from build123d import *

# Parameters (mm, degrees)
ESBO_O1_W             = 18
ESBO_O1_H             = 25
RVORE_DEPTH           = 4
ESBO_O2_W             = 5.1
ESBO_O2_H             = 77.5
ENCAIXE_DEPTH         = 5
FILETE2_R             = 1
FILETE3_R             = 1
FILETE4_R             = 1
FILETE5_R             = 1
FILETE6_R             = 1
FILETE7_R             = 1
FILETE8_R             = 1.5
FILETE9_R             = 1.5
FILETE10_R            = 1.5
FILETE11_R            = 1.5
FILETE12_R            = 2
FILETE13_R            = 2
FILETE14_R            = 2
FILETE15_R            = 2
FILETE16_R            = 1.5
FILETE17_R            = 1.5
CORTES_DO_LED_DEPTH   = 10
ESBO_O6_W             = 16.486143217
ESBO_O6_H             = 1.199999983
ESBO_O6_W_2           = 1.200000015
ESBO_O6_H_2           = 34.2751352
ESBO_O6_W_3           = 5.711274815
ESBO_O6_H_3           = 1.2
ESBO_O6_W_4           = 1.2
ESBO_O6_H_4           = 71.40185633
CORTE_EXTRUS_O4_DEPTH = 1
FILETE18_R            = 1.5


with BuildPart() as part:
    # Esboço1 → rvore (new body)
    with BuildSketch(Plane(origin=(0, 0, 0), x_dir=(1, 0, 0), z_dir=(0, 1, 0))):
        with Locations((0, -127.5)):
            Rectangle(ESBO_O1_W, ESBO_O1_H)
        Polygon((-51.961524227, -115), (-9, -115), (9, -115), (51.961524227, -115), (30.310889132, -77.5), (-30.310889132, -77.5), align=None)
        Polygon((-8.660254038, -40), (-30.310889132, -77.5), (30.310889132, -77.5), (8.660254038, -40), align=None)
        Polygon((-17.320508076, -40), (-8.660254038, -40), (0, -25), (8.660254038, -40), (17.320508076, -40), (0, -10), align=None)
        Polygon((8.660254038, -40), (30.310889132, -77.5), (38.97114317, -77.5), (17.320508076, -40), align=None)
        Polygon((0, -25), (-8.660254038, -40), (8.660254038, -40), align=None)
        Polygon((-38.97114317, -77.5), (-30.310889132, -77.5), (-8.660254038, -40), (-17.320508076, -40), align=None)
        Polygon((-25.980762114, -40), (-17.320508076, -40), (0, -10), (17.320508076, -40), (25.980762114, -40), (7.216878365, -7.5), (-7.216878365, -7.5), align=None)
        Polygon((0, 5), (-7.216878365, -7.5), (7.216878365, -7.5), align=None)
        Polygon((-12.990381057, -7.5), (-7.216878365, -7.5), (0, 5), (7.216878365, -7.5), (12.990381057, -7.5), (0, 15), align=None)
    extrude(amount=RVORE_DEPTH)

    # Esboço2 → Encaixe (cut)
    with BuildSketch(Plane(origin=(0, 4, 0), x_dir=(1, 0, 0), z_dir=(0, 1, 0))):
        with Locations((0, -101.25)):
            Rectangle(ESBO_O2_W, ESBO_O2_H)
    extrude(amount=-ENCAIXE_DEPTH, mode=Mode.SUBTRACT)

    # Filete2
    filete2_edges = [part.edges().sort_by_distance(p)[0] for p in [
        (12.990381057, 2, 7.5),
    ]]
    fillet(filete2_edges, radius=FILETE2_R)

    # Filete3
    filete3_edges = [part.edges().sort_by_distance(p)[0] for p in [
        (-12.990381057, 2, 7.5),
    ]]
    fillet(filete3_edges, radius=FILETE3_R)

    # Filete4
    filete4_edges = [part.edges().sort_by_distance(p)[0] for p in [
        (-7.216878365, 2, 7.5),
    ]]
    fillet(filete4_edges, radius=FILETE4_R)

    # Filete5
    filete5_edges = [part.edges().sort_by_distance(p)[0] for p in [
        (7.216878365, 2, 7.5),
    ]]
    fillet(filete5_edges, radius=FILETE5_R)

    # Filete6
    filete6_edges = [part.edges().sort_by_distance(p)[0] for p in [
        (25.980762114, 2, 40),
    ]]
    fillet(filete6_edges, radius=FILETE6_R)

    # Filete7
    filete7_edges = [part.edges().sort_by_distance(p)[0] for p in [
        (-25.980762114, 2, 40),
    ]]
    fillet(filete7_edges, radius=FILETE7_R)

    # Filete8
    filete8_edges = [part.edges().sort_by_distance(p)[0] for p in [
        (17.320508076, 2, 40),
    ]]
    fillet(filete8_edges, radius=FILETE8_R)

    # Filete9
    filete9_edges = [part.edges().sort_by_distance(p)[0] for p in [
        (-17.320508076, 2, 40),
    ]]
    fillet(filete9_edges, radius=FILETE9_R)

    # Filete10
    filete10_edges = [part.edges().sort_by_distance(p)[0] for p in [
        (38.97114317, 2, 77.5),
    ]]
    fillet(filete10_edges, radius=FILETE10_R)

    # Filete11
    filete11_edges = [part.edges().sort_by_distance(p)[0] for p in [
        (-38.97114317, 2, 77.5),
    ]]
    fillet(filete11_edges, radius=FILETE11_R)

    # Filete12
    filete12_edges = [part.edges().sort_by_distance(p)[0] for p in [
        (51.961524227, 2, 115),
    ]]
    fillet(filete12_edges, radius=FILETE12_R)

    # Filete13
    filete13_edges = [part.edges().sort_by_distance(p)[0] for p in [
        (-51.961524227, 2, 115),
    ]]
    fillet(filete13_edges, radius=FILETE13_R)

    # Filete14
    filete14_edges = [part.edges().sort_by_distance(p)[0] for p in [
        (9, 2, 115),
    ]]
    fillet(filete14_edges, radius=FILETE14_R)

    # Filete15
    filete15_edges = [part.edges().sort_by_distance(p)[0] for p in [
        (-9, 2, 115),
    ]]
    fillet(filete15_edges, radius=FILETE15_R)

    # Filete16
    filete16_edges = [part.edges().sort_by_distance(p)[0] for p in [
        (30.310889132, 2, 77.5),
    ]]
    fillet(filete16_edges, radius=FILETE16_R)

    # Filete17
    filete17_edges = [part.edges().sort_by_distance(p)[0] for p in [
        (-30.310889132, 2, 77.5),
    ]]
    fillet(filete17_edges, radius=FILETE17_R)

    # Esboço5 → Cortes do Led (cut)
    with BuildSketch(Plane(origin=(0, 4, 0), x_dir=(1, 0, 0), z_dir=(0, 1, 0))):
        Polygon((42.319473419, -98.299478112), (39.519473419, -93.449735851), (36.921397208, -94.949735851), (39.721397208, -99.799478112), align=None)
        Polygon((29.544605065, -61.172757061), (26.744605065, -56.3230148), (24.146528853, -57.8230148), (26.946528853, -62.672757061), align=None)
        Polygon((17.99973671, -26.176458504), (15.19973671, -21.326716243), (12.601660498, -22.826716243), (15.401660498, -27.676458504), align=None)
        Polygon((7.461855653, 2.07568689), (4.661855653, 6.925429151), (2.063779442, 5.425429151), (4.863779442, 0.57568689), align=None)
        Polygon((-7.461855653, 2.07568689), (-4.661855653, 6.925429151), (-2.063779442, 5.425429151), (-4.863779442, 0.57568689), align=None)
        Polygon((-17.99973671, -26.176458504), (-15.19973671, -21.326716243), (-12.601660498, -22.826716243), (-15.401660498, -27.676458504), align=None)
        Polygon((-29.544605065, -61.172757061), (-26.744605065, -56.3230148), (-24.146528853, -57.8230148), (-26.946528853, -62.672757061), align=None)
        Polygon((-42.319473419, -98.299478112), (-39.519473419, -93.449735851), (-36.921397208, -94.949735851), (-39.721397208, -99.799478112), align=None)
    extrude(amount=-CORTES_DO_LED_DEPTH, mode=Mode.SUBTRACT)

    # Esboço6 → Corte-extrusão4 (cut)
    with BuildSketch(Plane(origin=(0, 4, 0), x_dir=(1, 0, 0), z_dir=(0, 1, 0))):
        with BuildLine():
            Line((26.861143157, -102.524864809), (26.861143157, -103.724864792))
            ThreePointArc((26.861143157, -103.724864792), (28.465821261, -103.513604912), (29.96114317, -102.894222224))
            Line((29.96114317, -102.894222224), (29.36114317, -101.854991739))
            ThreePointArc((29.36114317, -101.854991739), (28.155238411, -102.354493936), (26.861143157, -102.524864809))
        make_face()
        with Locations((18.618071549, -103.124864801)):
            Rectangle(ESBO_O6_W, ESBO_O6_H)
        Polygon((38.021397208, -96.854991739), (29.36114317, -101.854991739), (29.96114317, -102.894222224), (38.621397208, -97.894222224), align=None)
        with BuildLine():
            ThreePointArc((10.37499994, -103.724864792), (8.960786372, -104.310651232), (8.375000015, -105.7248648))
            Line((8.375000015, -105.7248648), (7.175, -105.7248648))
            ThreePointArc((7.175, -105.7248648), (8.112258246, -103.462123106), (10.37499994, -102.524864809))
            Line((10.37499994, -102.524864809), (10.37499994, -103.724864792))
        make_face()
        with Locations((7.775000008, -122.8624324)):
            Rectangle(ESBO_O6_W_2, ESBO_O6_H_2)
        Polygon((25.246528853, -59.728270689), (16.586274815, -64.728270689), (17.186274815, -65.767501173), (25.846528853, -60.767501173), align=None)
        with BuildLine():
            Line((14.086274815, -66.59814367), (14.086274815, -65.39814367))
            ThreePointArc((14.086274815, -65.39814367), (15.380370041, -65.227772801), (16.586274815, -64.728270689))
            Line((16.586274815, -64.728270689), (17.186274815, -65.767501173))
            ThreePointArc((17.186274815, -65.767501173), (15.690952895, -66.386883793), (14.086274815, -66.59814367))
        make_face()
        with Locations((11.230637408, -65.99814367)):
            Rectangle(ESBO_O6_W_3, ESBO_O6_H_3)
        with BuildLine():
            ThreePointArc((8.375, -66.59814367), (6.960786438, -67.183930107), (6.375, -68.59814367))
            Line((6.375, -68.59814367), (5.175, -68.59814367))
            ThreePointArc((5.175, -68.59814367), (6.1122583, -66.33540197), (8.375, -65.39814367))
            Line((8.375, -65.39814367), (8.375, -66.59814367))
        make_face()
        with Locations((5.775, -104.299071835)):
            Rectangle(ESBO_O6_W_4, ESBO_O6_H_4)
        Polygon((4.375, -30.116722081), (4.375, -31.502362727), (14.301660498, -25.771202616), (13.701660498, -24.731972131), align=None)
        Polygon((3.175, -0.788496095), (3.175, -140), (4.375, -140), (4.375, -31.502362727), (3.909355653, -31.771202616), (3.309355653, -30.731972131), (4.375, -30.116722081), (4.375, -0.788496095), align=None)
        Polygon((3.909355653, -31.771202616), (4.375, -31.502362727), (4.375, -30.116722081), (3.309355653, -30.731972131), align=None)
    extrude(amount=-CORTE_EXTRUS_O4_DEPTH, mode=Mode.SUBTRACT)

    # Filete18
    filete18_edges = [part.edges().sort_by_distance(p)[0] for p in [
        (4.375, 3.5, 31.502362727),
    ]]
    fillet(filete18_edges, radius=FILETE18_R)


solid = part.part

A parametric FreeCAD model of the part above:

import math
import FreeCAD as App
import Part
import Sketcher
from FreeCAD import Vector
Q = App.Units.Quantity


def edges_at(feature, points):
    """Names of the edges that pass closest to the given points."""
    edges = feature.Shape.Edges
    near = lambda p: min(range(len(edges)), key=lambda i: edges[i].distToShape(Part.Vertex(*p))[0])
    return sorted({f"Edge{near(p) + 1}" for p in points})


def add_polygon(sketch, points):
    """Adds a closed chain of lines whose ends are joined by coincident constraints."""
    first, n = sketch.GeometryCount, len(points)
    for a, b in zip(points, points[1:] + points[:1]):
        sketch.addGeometry(Part.LineSegment(App.Vector(*a, 0), App.Vector(*b, 0)), False)
    for i in range(n):
        sketch.addConstraint(Sketcher.Constraint("Coincident", first + i, 2, first + (i + 1) % n, 1))

doc = App.newDocument("Part")
body = doc.addObject("PartDesign::Body", "Body")

sketch1 = doc.addObject("Sketcher::SketchObject", "Sketch")
body.addObject(sketch1)
sketch1.AttachmentSupport = (doc.XZ_Plane, [""])
sketch1.MapMode = "FlatFace"
add_polygon(sketch1, [(-30.310889, 77.5), (-51.961524, 115), (-9, 115), (-9, 140), (9, 140), (9, 115), (51.961524, 115), (30.310889, 77.5), (38.971143, 77.5), (17.320508, 40), (25.980762, 40), (7.216878, 7.5), (12.990381, 7.5), (0, -15), (-12.990381, 7.5), (-7.216878, 7.5), (-25.980762, 40), (-17.320508, 40), (-38.971143, 77.5)])
sketch1.addConstraint(Sketcher.Constraint("Horizontal", 1))
sketch1.addConstraint(Sketcher.Constraint("Vertical", 2))
sketch1.addConstraint(Sketcher.Constraint("Horizontal", 3))
sketch1.addConstraint(Sketcher.Constraint("Vertical", 4))
sketch1.addConstraint(Sketcher.Constraint("Horizontal", 5))
sketch1.addConstraint(Sketcher.Constraint("Horizontal", 7))
sketch1.addConstraint(Sketcher.Constraint("Horizontal", 9))
sketch1.addConstraint(Sketcher.Constraint("Horizontal", 11))
sketch1.addConstraint(Sketcher.Constraint("Horizontal", 14))
sketch1.addConstraint(Sketcher.Constraint("Horizontal", 16))
sketch1.addConstraint(Sketcher.Constraint("Horizontal", 18))
sketch1.addConstraint(Sketcher.Constraint("Symmetric", 1, 2, 4, 2, -2))
sketch1.addConstraint(Sketcher.Constraint("Symmetric", 11, 2, 13, 2, -2))
sketch1.addConstraint(Sketcher.Constraint("Symmetric", 9, 2, 15, 2, -2))
sketch1.addConstraint(Sketcher.Constraint("Symmetric", 7, 2, 17, 2, -2))
sketch1.addConstraint(Sketcher.Constraint("PointOnObject", 12, 2, -2))
sketch1.addConstraint(Sketcher.Constraint("Parallel", 6, 8))
sketch1.addConstraint(Sketcher.Constraint("Parallel", 8, 10))
sketch1.addConstraint(Sketcher.Constraint("Parallel", 10, 12))
sketch1.addConstraint(Sketcher.Constraint("Parallel", 0, 13))
sketch1.addConstraint(Sketcher.Constraint("Parallel", 13, 15))
sketch1.addConstraint(Sketcher.Constraint("Parallel", 15, 17))
sketch1.addConstraint(Sketcher.Constraint("Equal", 1, 5))
sketch1.addConstraint(Sketcher.Constraint("Equal", 7, 9))
sketch1.addConstraint(Sketcher.Constraint("Equal", 6, 8))
sketch1.addConstraint(Sketcher.Constraint("DistanceX", 3, 1, 3, 2, 18.0))
sketch1.addConstraint(Sketcher.Constraint("DistanceY", 2, 1, 2, 2, 25.0))
sketch1.addConstraint(Sketcher.Constraint("Angle", 0, Q("120 deg")))
sketch1.addConstraint(Sketcher.Constraint("DistanceY", -1, 1, 0, 2, 115.0))
sketch1.addConstraint(Sketcher.Constraint("DistanceY", -1, 1, 8, 2, 40.0))
sketch1.addConstraint(Sketcher.Constraint("DistanceY", 12, 2, -1, 1, 15.0))
sketch1.addConstraint(Sketcher.Constraint("DistanceY", 10, 2, 6, 2, 70.0))
sketch1.addConstraint(Sketcher.Constraint("DistanceX", 1, 1, 1, 2, 42.961524))
sketch1.addConstraint(Sketcher.Constraint("DistanceX", 7, 1, 7, 2, 8.660254))
pad1 = doc.addObject("PartDesign::Pad", "Pad")
body.addObject(pad1)
pad1.Profile = sketch1
pad1.Length = 4
pad1.Reversed = True

sketch2 = doc.addObject("Sketcher::SketchObject", "Sketch001")
body.addObject(sketch2)
sketch2.AttachmentSupport = (doc.XZ_Plane, [""])
sketch2.MapMode = "FlatFace"
sketch2.AttachmentOffset = App.Placement(Vector(0, 0, -4), App.Rotation())
add_polygon(sketch2, [(-2.55, 62.5), (-2.55, 140), (2.55, 140), (2.55, 62.5)])
sketch2.addConstraint(Sketcher.Constraint("Vertical", 0))
sketch2.addConstraint(Sketcher.Constraint("Horizontal", 1))
sketch2.addConstraint(Sketcher.Constraint("Vertical", 2))
sketch2.addConstraint(Sketcher.Constraint("Horizontal", 3))
sketch2.addConstraint(Sketcher.Constraint("DistanceX", 1, 1, 1, 2, 5.1))
sketch2.addConstraint(Sketcher.Constraint("DistanceY", 0, 1, 0, 2, 77.5))
sketch2.addConstraint(Sketcher.Constraint("DistanceY", -1, 1, 0, 2, 140.0))
sketch2.addConstraint(Sketcher.Constraint("DistanceX", 0, 2, -1, 1, 2.55))
pocket1 = doc.addObject("PartDesign::Pocket", "Pocket")
body.addObject(pocket1)
pocket1.Profile = sketch2
pocket1.Length = 5
pocket1.Reversed = True
doc.recompute()

fillet = doc.addObject("PartDesign::Fillet", "Fillet")
body.addObject(fillet)
fillet.Base = (pocket1, edges_at(pocket1, [(12.99, 2, 7.5)]))
fillet.Radius = 1
doc.recompute()

fillet2 = doc.addObject("PartDesign::Fillet", "Fillet001")
body.addObject(fillet2)
fillet2.Base = (fillet, edges_at(fillet, [(-12.99, 2, 7.5)]))
fillet2.Radius = 1
doc.recompute()

fillet3 = doc.addObject("PartDesign::Fillet", "Fillet002")
body.addObject(fillet3)
fillet3.Base = (fillet2, edges_at(fillet2, [(-7.217, 2, 7.5)]))
fillet3.Radius = 1
doc.recompute()

fillet4 = doc.addObject("PartDesign::Fillet", "Fillet003")
body.addObject(fillet4)
fillet4.Base = (fillet3, edges_at(fillet3, [(7.217, 2, 7.5)]))
fillet4.Radius = 1
doc.recompute()

fillet5 = doc.addObject("PartDesign::Fillet", "Fillet004")
body.addObject(fillet5)
fillet5.Base = (fillet4, edges_at(fillet4, [(25.981, 2, 40)]))
fillet5.Radius = 1
doc.recompute()

fillet6 = doc.addObject("PartDesign::Fillet", "Fillet005")
body.addObject(fillet6)
fillet6.Base = (fillet5, edges_at(fillet5, [(-25.981, 2, 40)]))
fillet6.Radius = 1
doc.recompute()

fillet7 = doc.addObject("PartDesign::Fillet", "Fillet006")
body.addObject(fillet7)
fillet7.Base = (fillet6, edges_at(fillet6, [(17.321, 2, 40)]))
fillet7.Radius = 1.5
doc.recompute()

fillet8 = doc.addObject("PartDesign::Fillet", "Fillet007")
body.addObject(fillet8)
fillet8.Base = (fillet7, edges_at(fillet7, [(-17.321, 2, 40)]))
fillet8.Radius = 1.5
doc.recompute()

fillet9 = doc.addObject("PartDesign::Fillet", "Fillet008")
body.addObject(fillet9)
fillet9.Base = (fillet8, edges_at(fillet8, [(38.971, 2, 77.5)]))
fillet9.Radius = 1.5
doc.recompute()

fillet10 = doc.addObject("PartDesign::Fillet", "Fillet009")
body.addObject(fillet10)
fillet10.Base = (fillet9, edges_at(fillet9, [(-38.971, 2, 77.5)]))
fillet10.Radius = 1.5
doc.recompute()

fillet11 = doc.addObject("PartDesign::Fillet", "Fillet010")
body.addObject(fillet11)
fillet11.Base = (fillet10, edges_at(fillet10, [(51.962, 2, 115)]))
fillet11.Radius = 2
doc.recompute()

fillet12 = doc.addObject("PartDesign::Fillet", "Fillet011")
body.addObject(fillet12)
fillet12.Base = (fillet11, edges_at(fillet11, [(-51.962, 2, 115)]))
fillet12.Radius = 2
doc.recompute()

fillet13 = doc.addObject("PartDesign::Fillet", "Fillet012")
body.addObject(fillet13)
fillet13.Base = (fillet12, edges_at(fillet12, [(9, 2, 115)]))
fillet13.Radius = 2
doc.recompute()

fillet14 = doc.addObject("PartDesign::Fillet", "Fillet013")
body.addObject(fillet14)
fillet14.Base = (fillet13, edges_at(fillet13, [(-9, 2, 115)]))
fillet14.Radius = 2
doc.recompute()

fillet15 = doc.addObject("PartDesign::Fillet", "Fillet014")
body.addObject(fillet15)
fillet15.Base = (fillet14, edges_at(fillet14, [(30.311, 2, 77.5)]))
fillet15.Radius = 1.5
doc.recompute()

fillet16 = doc.addObject("PartDesign::Fillet", "Fillet015")
body.addObject(fillet16)
fillet16.Base = (fillet15, edges_at(fillet15, [(-30.311, 2, 77.5)]))
fillet16.Radius = 1.5

sketch3 = doc.addObject("Sketcher::SketchObject", "Sketch002")
body.addObject(sketch3)
sketch3.AttachmentSupport = (doc.XZ_Plane, [""])
sketch3.MapMode = "FlatFace"
sketch3.AttachmentOffset = App.Placement(Vector(0, 0, -4), App.Rotation())
add_polygon(sketch3, [(42.319473, 98.299478), (39.519473, 93.449736), (36.921397, 94.949736), (39.721397, 99.799478)])
add_polygon(sketch3, [(29.544605, 61.172757), (26.744605, 56.323015), (24.146529, 57.823015), (26.946529, 62.672757)])
add_polygon(sketch3, [(17.999737, 26.176459), (15.199737, 21.326716), (12.60166, 22.826716), (15.40166, 27.676459)])
add_polygon(sketch3, [(7.461856, -2.075687), (4.661856, -6.925429), (2.063779, -5.425429), (4.863779, -0.575687)])
add_polygon(sketch3, [(-4.661856, -6.925429), (-7.461856, -2.075687), (-4.863779, -0.575687), (-2.063779, -5.425429)])
add_polygon(sketch3, [(-15.199737, 21.326716), (-17.999737, 26.176459), (-15.40166, 27.676459), (-12.60166, 22.826716)])
add_polygon(sketch3, [(-26.744605, 56.323015), (-29.544605, 61.172757), (-26.946529, 62.672757), (-24.146529, 57.823015)])
add_polygon(sketch3, [(-39.519473, 93.449736), (-42.319473, 98.299478), (-39.721397, 99.799478), (-36.921397, 94.949736)])
sketch3.addConstraint(Sketcher.Constraint("Symmetric", 15, 2, 16, 2, -2))
sketch3.addConstraint(Sketcher.Constraint("Symmetric", 14, 2, 17, 2, -2))
sketch3.addConstraint(Sketcher.Constraint("Symmetric", 13, 2, 18, 2, -2))
sketch3.addConstraint(Sketcher.Constraint("Symmetric", 12, 2, 19, 2, -2))
sketch3.addConstraint(Sketcher.Constraint("Symmetric", 11, 2, 20, 2, -2))
sketch3.addConstraint(Sketcher.Constraint("Symmetric", 10, 2, 21, 2, -2))
sketch3.addConstraint(Sketcher.Constraint("Symmetric", 9, 2, 22, 2, -2))
sketch3.addConstraint(Sketcher.Constraint("Symmetric", 8, 2, 23, 2, -2))
sketch3.addConstraint(Sketcher.Constraint("Symmetric", 7, 2, 24, 2, -2))
sketch3.addConstraint(Sketcher.Constraint("Symmetric", 6, 2, 25, 2, -2))
sketch3.addConstraint(Sketcher.Constraint("Symmetric", 5, 2, 26, 2, -2))
sketch3.addConstraint(Sketcher.Constraint("Symmetric", 4, 2, 27, 2, -2))
sketch3.addConstraint(Sketcher.Constraint("Symmetric", 3, 2, 28, 2, -2))
sketch3.addConstraint(Sketcher.Constraint("Symmetric", 2, 2, 29, 2, -2))
sketch3.addConstraint(Sketcher.Constraint("Symmetric", 1, 2, 30, 2, -2))
sketch3.addConstraint(Sketcher.Constraint("Symmetric", 0, 2, 31, 2, -2))
sketch3.addConstraint(Sketcher.Constraint("Perpendicular", 0, 1))
sketch3.addConstraint(Sketcher.Constraint("Perpendicular", 1, 2))
sketch3.addConstraint(Sketcher.Constraint("Perpendicular", 2, 3))
sketch3.addConstraint(Sketcher.Constraint("Perpendicular", 3, 4))
sketch3.addConstraint(Sketcher.Constraint("Perpendicular", 4, 5))
sketch3.addConstraint(Sketcher.Constraint("Perpendicular", 5, 6))
sketch3.addConstraint(Sketcher.Constraint("Perpendicular", 6, 7))
sketch3.addConstraint(Sketcher.Constraint("Perpendicular", 7, 8))
sketch3.addConstraint(Sketcher.Constraint("Perpendicular", 8, 9))
sketch3.addConstraint(Sketcher.Constraint("Perpendicular", 9, 10))
sketch3.addConstraint(Sketcher.Constraint("Perpendicular", 10, 11))
sketch3.addConstraint(Sketcher.Constraint("Perpendicular", 11, 12))
sketch3.addConstraint(Sketcher.Constraint("Perpendicular", 12, 13))
sketch3.addConstraint(Sketcher.Constraint("Perpendicular", 13, 14))
sketch3.addConstraint(Sketcher.Constraint("Perpendicular", 14, 15))
sketch3.addConstraint(Sketcher.Constraint("Equal", 2, 4))
sketch3.addConstraint(Sketcher.Constraint("Equal", 3, 5))
sketch3.addConstraint(Sketcher.Constraint("Equal", 6, 8))
sketch3.addConstraint(Sketcher.Constraint("Equal", 7, 9))
sketch3.addConstraint(Sketcher.Constraint("Equal", 10, 12))
sketch3.addConstraint(Sketcher.Constraint("Equal", 11, 13))
sketch3.addConstraint(Sketcher.Constraint("Angle", 0, Q("-120 deg")))
sketch3.addConstraint(Sketcher.Constraint("Distance", 1, 3.0))
sketch3.addConstraint(Sketcher.Constraint("Distance", 0, 5.6))
sketch3.addConstraint(Sketcher.Constraint("DistanceY", 8, 2, 4, 2, 34.996299))
sketch3.addConstraint(Sketcher.Constraint("DistanceY", -1, 1, 2, 2, 99.799478))
sketch3.addConstraint(Sketcher.Constraint("DistanceX", -1, 1, 5, 2, 24.146529))
sketch3.addConstraint(Sketcher.Constraint("DistanceX", -1, 1, 9, 2, 12.60166))
sketch3.addConstraint(Sketcher.Constraint("DistanceY", -1, 1, 10, 2, 27.676459))
sketch3.addConstraint(Sketcher.Constraint("DistanceY", 12, 2, -1, 1, 6.925429))
sketch3.addConstraint(Sketcher.Constraint("DistanceX", -1, 1, 13, 2, 2.063779))
sketch3.addConstraint(Sketcher.Constraint("DistanceX", 4, 2, 0, 2, 12.774868))
pocket2 = doc.addObject("PartDesign::Pocket", "Pocket001")
body.addObject(pocket2)
pocket2.Profile = sketch3
pocket2.Length = 10
pocket2.Reversed = True

sketch4 = doc.addObject("Sketcher::SketchObject", "Sketch003")
body.addObject(sketch4)
sketch4.AttachmentSupport = (doc.XZ_Plane, [""])
sketch4.MapMode = "FlatFace"
sketch4.AttachmentOffset = App.Placement(Vector(0, 0, -4), App.Rotation())
sketch4.addGeometry(Part.ArcOfCircle(Part.Circle(Vector(26.861143, 97.524866, 0), Vector(0, 0, 1), 6.199999), math.radians(59.999996), math.radians(90.000001)), False)
sketch4.addGeometry(Part.LineSegment(Vector(29.961143, 102.894222, 0), Vector(38.621397, 97.894222, 0)), False)
sketch4.addGeometry(Part.LineSegment(Vector(38.621397, 97.894222, 0), Vector(38.021397, 96.854992, 0)), False)
sketch4.addGeometry(Part.LineSegment(Vector(38.021397, 96.854992, 0), Vector(29.361143, 101.854992, 0)), False)
sketch4.addGeometry(Part.ArcOfCircle(Part.Circle(Vector(26.861143, 97.524866, 0), Vector(0, 0, 1), 4.999999), math.radians(59.999995), math.radians(90.000002)), False)
sketch4.addGeometry(Part.LineSegment(Vector(26.861143, 102.524865, 0), Vector(10.375, 102.524865, 0)), False)
sketch4.addGeometry(Part.ArcOfCircle(Part.Circle(Vector(10.375, 105.724865, 0), Vector(0, 0, 1), 3.2), math.radians(179.999998), math.radians(270.000001)), False)
sketch4.addGeometry(Part.LineSegment(Vector(7.175, 105.724865, 0), Vector(7.175, 140, 0)), False)
sketch4.addGeometry(Part.LineSegment(Vector(7.175, 140, 0), Vector(8.375, 140, 0)), False)
sketch4.addGeometry(Part.LineSegment(Vector(8.375, 140, 0), Vector(8.375, 105.724865, 0)), False)
sketch4.addGeometry(Part.ArcOfCircle(Part.Circle(Vector(10.375, 105.724865, 0), Vector(0, 0, 1), 2), math.radians(179.999996), math.radians(270.000002)), False)
sketch4.addGeometry(Part.LineSegment(Vector(10.375, 103.724865, 0), Vector(26.861143, 103.724865, 0)), False)
sketch4.addGeometry(Part.LineSegment(Vector(25.246529, 59.728271, 0), Vector(16.586275, 64.728271, 0)), False)
sketch4.addGeometry(Part.ArcOfCircle(Part.Circle(Vector(14.086275, 60.398144, 0), Vector(0, 0, 1), 5), math.radians(60), math.radians(90)), False)
sketch4.addGeometry(Part.LineSegment(Vector(14.086275, 65.398144, 0), Vector(8.375, 65.398144, 0)), False)
sketch4.addGeometry(Part.ArcOfCircle(Part.Circle(Vector(8.375, 68.598144, 0), Vector(0, 0, 1), 3.2), math.radians(180), math.radians(270)), False)
sketch4.addGeometry(Part.LineSegment(Vector(5.175, 68.598144, 0), Vector(5.175, 140, 0)), False)
sketch4.addGeometry(Part.LineSegment(Vector(5.175, 140, 0), Vector(6.375, 140, 0)), False)
sketch4.addGeometry(Part.LineSegment(Vector(6.375, 140, 0), Vector(6.375, 68.598144, 0)), False)
sketch4.addGeometry(Part.ArcOfCircle(Part.Circle(Vector(8.375, 68.598144, 0), Vector(0, 0, 1), 2), math.radians(180), math.radians(270)), False)
sketch4.addGeometry(Part.LineSegment(Vector(8.375, 66.598144, 0), Vector(14.086275, 66.598144, 0)), False)
sketch4.addGeometry(Part.ArcOfCircle(Part.Circle(Vector(14.086275, 60.398144, 0), Vector(0, 0, 1), 6.2), math.radians(60), math.radians(90)), False)
sketch4.addGeometry(Part.LineSegment(Vector(17.186275, 65.767501, 0), Vector(25.846529, 60.767501, 0)), False)
sketch4.addGeometry(Part.LineSegment(Vector(25.846529, 60.767501, 0), Vector(25.246529, 59.728271, 0)), False)
add_polygon(sketch4, [(4.375, 31.502363), (14.30166, 25.771203), (13.70166, 24.731972), (4.375, 30.116722), (4.375, 0.788496), (3.175, 0.788496), (3.175, 140), (4.375, 140)])
sketch4.addConstraint(Sketcher.Constraint("Tangent", 0, 1, 1, 1))
sketch4.addConstraint(Sketcher.Constraint("Coincident", 1, 2, 2, 1))
sketch4.addConstraint(Sketcher.Constraint("Coincident", 2, 2, 3, 1))
sketch4.addConstraint(Sketcher.Constraint("Tangent", 3, 2, 4, 1))
sketch4.addConstraint(Sketcher.Constraint("Tangent", 4, 2, 5, 1))
sketch4.addConstraint(Sketcher.Constraint("Tangent", 5, 2, 6, 2))
sketch4.addConstraint(Sketcher.Constraint("Tangent", 6, 1, 7, 1))
sketch4.addConstraint(Sketcher.Constraint("Coincident", 7, 2, 8, 1))
sketch4.addConstraint(Sketcher.Constraint("Coincident", 8, 2, 9, 1))
sketch4.addConstraint(Sketcher.Constraint("Tangent", 9, 2, 10, 1))
sketch4.addConstraint(Sketcher.Constraint("Tangent", 10, 2, 11, 1))
sketch4.addConstraint(Sketcher.Constraint("Tangent", 11, 2, 0, 2))
sketch4.addConstraint(Sketcher.Constraint("Tangent", 12, 2, 13, 1))
sketch4.addConstraint(Sketcher.Constraint("Tangent", 13, 2, 14, 1))
sketch4.addConstraint(Sketcher.Constraint("Tangent", 14, 2, 15, 2))
sketch4.addConstraint(Sketcher.Constraint("Tangent", 15, 1, 16, 1))
sketch4.addConstraint(Sketcher.Constraint("Coincident", 16, 2, 17, 1))
sketch4.addConstraint(Sketcher.Constraint("Coincident", 17, 2, 18, 1))
sketch4.addConstraint(Sketcher.Constraint("Tangent", 18, 2, 19, 1))
sketch4.addConstraint(Sketcher.Constraint("Tangent", 19, 2, 20, 1))
sketch4.addConstraint(Sketcher.Constraint("Tangent", 20, 2, 21, 2))
sketch4.addConstraint(Sketcher.Constraint("Tangent", 21, 1, 22, 1))
sketch4.addConstraint(Sketcher.Constraint("Coincident", 22, 2, 23, 1))
sketch4.addConstraint(Sketcher.Constraint("Coincident", 23, 2, 12, 1))
sketch4.addConstraint(Sketcher.Constraint("Horizontal", 5))
sketch4.addConstraint(Sketcher.Constraint("Vertical", 7))
sketch4.addConstraint(Sketcher.Constraint("Horizontal", 8))
sketch4.addConstraint(Sketcher.Constraint("Vertical", 9))
sketch4.addConstraint(Sketcher.Constraint("Horizontal", 11))
sketch4.addConstraint(Sketcher.Constraint("Horizontal", 14))
sketch4.addConstraint(Sketcher.Constraint("Vertical", 16))
sketch4.addConstraint(Sketcher.Constraint("Horizontal", 17))
sketch4.addConstraint(Sketcher.Constraint("Vertical", 18))
sketch4.addConstraint(Sketcher.Constraint("Horizontal", 20))
sketch4.addConstraint(Sketcher.Constraint("Vertical", 27))
sketch4.addConstraint(Sketcher.Constraint("Horizontal", 28))
sketch4.addConstraint(Sketcher.Constraint("Vertical", 29))
sketch4.addConstraint(Sketcher.Constraint("Horizontal", 30))
sketch4.addConstraint(Sketcher.Constraint("Vertical", 31))
sketch4.addConstraint(Sketcher.Constraint("Coincident", 4, 3, 0, 3))
sketch4.addConstraint(Sketcher.Constraint("Coincident", 10, 3, 6, 3))
sketch4.addConstraint(Sketcher.Constraint("Coincident", 19, 3, 15, 3))
sketch4.addConstraint(Sketcher.Constraint("Coincident", 21, 3, 13, 3))
sketch4.addConstraint(Sketcher.Constraint("Equal", 4, 13))
sketch4.addConstraint(Sketcher.Constraint("Equal", 6, 15))
sketch4.addConstraint(Sketcher.Constraint("Equal", 10, 19))
sketch4.addConstraint(Sketcher.Constraint("Perpendicular", 1, 2))
sketch4.addConstraint(Sketcher.Constraint("Perpendicular", 2, 3))
sketch4.addConstraint(Sketcher.Constraint("Parallel", 3, 12))
sketch4.addConstraint(Sketcher.Constraint("Parallel", 12, 22))
sketch4.addConstraint(Sketcher.Constraint("Perpendicular", 22, 23))
sketch4.addConstraint(Sketcher.Constraint("Perpendicular", 23, 24))
sketch4.addConstraint(Sketcher.Constraint("Perpendicular", 24, 25))
sketch4.addConstraint(Sketcher.Constraint("Perpendicular", 25, 26))
sketch4.addConstraint(Sketcher.Constraint("Horizontal", 8, 2, 16, 2))
sketch4.addConstraint(Sketcher.Constraint("Horizontal", 17, 2, 29, 2))
sketch4.addConstraint(Sketcher.Constraint("Vertical", 19, 3, 8, 2))
sketch4.addConstraint(Sketcher.Constraint("Vertical", 27, 2, 30, 2))
sketch4.addConstraint(Sketcher.Constraint("Equal", 17, 28))
sketch4.addConstraint(Sketcher.Constraint("Equal", 3, 12))
sketch4.addConstraint(Sketcher.Constraint("Equal", 23, 25))
sketch4.addConstraint(Sketcher.Constraint("Radius", 4, 4.999999))
sketch4.addConstraint(Sketcher.Constraint("Radius", 10, 2.0))
sketch4.addConstraint(Sketcher.Constraint("Radius", 0, 6.199999))
sketch4.addConstraint(Sketcher.Constraint("Angle", 1, Q("-30 deg")))
sketch4.addConstraint(Sketcher.Constraint("Distance", 1, 10.0))
sketch4.addConstraint(Sketcher.Constraint("DistanceY", -1, 1, 7, 2, 140.0))
sketch4.addConstraint(Sketcher.Constraint("DistanceX", 26, 2, 14, 2, 4.0))
sketch4.addConstraint(Sketcher.Constraint("DistanceX", -1, 1, 6, 3, 10.375))
sketch4.addConstraint(Sketcher.Constraint("Distance", 26, 10.7695))
sketch4.addConstraint(Sketcher.Constraint("DistanceY", -1, 1, 21, 1, 65.767501))
sketch4.addConstraint(Sketcher.Constraint("DistanceY", 24, 2, 22, 2, 34.996299))
sketch4.addConstraint(Sketcher.Constraint("DistanceX", 5, 2, 5, 1, 16.486143))
sketch4.addConstraint(Sketcher.Constraint("DistanceX", 14, 2, 14, 1, 5.711275))
sketch4.addConstraint(Sketcher.Constraint("DistanceY", 7, 1, 7, 2, 34.275135))
sketch4.addConstraint(Sketcher.Constraint("DistanceY", 27, 2, 27, 1, 29.328226))
pocket3 = doc.addObject("PartDesign::Pocket", "Pocket002")
body.addObject(pocket3)
pocket3.Profile = sketch4
pocket3.Length = 1
pocket3.Reversed = True
doc.recompute()

fillet17 = doc.addObject("PartDesign::Fillet", "Fillet016")
body.addObject(fillet17)
fillet17.Base = (pocket3, edges_at(pocket3, [(4.375, 3.5, 31.502)]))
fillet17.Radius = 1.5

doc.recompute()
